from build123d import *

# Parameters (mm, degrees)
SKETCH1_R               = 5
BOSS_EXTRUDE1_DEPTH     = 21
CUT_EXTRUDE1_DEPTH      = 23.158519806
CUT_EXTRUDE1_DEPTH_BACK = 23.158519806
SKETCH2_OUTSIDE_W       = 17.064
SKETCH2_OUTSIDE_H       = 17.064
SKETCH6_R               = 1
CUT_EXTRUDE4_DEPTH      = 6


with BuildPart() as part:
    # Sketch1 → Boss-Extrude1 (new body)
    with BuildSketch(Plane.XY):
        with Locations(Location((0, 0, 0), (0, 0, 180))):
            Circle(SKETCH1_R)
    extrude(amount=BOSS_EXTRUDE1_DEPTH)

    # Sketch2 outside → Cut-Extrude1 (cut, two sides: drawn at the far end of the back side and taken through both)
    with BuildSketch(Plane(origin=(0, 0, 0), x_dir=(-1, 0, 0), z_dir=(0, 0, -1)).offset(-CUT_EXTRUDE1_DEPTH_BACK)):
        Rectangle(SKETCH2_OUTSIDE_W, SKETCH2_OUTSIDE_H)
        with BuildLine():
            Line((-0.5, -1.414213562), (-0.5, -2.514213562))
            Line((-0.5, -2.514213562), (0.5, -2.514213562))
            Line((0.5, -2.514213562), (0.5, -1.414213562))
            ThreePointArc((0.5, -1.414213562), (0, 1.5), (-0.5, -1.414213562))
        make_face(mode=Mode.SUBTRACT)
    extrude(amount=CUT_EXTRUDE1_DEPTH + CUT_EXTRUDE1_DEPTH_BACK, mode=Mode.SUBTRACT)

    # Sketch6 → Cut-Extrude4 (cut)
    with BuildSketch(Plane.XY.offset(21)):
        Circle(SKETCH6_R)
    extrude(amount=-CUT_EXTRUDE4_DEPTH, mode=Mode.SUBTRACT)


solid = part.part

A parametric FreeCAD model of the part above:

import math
import FreeCAD as App
import Part
import Sketcher
from FreeCAD import Vector
Q = App.Units.Quantity

doc = App.newDocument("Part")
params = doc.addObject("Spreadsheet::Sheet", "Params")
for row, (alias, value) in enumerate([
    ("sketch1_diameter", "10 mm"),
    ("pad1_length", "21 mm"),
    ("sketch2_radius", "1.5 mm"),
    ("sketch2_width", "1 mm"),
    ("sketch2_height", "1.1 mm"),
    ("sketch3_diameter", "2 mm"),
    ("pocket2_length", "6 mm"),
], start=1):
    params.set(f"A{row}", alias)
    params.set(f"B{row}", "=" + value)
    params.setAlias(f"B{row}", alias)

body = doc.addObject("PartDesign::Body", "Body")

# Sketch on XY plane
sketch1 = body.newObject("Sketcher::SketchObject", "Sketch")
sketch1.AttachmentSupport = (doc.getObject("XY_Plane"), [""])
sketch1.MapMode = "FlatFace"
sketch1.addGeometry(Part.Circle(Vector(0, 0, 0), Vector(0, 0, 1), 5), False)
sketch1.addConstraint([
    Sketcher.Constraint("Coincident", 0, 3, -1, 1),
    Sketcher.Constraint("Diameter", 0, Q("10 mm")),
])
sketch1.setExpression("Constraints[1]", "Params.sketch1_diameter")
pad1 = body.newObject("PartDesign::Pad", "Pad")
pad1.Profile = sketch1
pad1.setExpression("Length", "Params.pad1_length")

# Sketch on XY plane
sketch2 = body.newObject("Sketcher::SketchObject", "Sketch001")
sketch2.AttachmentSupport = (doc.getObject("XY_Plane"), [""])
sketch2.MapMode = "FlatFace"
sketch2.addGeometry([
    Part.LineSegment(Vector(8.532, 8.532, 0), Vector(8.532, -8.532, 0)),  # 0
    Part.LineSegment(Vector(8.532, -8.532, 0), Vector(-8.532, -8.532, 0)),  # 1
    Part.LineSegment(Vector(-8.532, -8.532, 0), Vector(-8.532, 8.532, 0)),  # 2
    Part.LineSegment(Vector(-8.532, 8.532, 0), Vector(8.532, 8.532, 0)),  # 3
    Part.LineSegment(Vector(0.5, -2.514214, 0), Vector(0.5, -1.414214, 0)),  # 4
    Part.ArcOfCircle(Part.Circle(Vector(0, 0, 0), Vector(0, 0, 1), 1.5), math.radians(-70.528779), math.radians(250.528779)),  # 5
    Part.LineSegment(Vector(-0.5, -1.414214, 0), Vector(-0.5, -2.514214, 0)),  # 6
    Part.LineSegment(Vector(-0.5, -2.514214, 0), Vector(0.5, -2.514214, 0)),  # 7
], False)
sketch2.addConstraint([
    Sketcher.Constraint("Coincident", 0, 2, 1, 1),
    Sketcher.Constraint("Coincident", 1, 2, 2, 1),
    Sketcher.Constraint("Coincident", 2, 2, 3, 1),
    Sketcher.Constraint("Coincident", 3, 2, 0, 1),
    Sketcher.Constraint("Coincident", 4, 2, 5, 1),
    Sketcher.Constraint("Coincident", 5, 2, 6, 1),
    Sketcher.Constraint("Coincident", 6, 2, 7, 1),
    Sketcher.Constraint("Coincident", 7, 2, 4, 1),
    Sketcher.Constraint("Vertical", 0),
    Sketcher.Constraint("Horizontal", 1),
    Sketcher.Constraint("Vertical", 2),
    Sketcher.Constraint("Horizontal", 3),
    Sketcher.Constraint("Vertical", 4),
    Sketcher.Constraint("Vertical", 6),
    Sketcher.Constraint("Horizontal", 7),
    Sketcher.Constraint("Coincident", 5, 3, -1, 1),
    Sketcher.Constraint("Symmetric", 0, 2, 2, 2, -1, 1),
    Sketcher.Constraint("Horizontal", 4, 2, 5, 2),
    Sketcher.Constraint("Equal", 3, 0),
    Sketcher.Constraint("Radius", 5, Q("1.5 mm")),
    Sketcher.Constraint("DistanceX", 7, 1, 7, 2, Q("1 mm")),
    Sketcher.Constraint("DistanceY", 4, 1, 4, 2, Q("1.1 mm")),
    Sketcher.Constraint("DistanceX", 1, 2, 1, 1, Q("17.064 mm")),
])
sketch2.setExpression("Constraints[19]", "Params.sketch2_radius")
sketch2.setExpression("Constraints[20]", "Params.sketch2_width")
sketch2.setExpression("Constraints[21]", "Params.sketch2_height")
pocket1 = body.newObject("PartDesign::Pocket", "Pocket")
pocket1.Profile = sketch2
pocket1.Type = "ThroughAll"
pocket1.Midplane = True

# Sketch on XY plane
sketch3 = body.newObject("Sketcher::SketchObject", "Sketch002")
sketch3.AttachmentSupport = (doc.getObject("XY_Plane"), [""])
sketch3.MapMode = "FlatFace"
sketch3.AttachmentOffset = App.Placement(Vector(0, 0, 21), App.Rotation())
sketch3.addGeometry(Part.Circle(Vector(0, 0, 0), Vector(0, 0, 1), 1), False)
sketch3.addConstraint([
    Sketcher.Constraint("Coincident", 0, 3, -1, 1),
    Sketcher.Constraint("Diameter", 0, Q("2 mm")),
])
sketch3.setExpression("Constraints[1]", "Params.sketch3_diameter")
pocket2 = body.newObject("PartDesign::Pocket", "Pocket001")
pocket2.Profile = sketch3
pocket2.setExpression("Length", "Params.pocket2_length")

doc.recompute()
